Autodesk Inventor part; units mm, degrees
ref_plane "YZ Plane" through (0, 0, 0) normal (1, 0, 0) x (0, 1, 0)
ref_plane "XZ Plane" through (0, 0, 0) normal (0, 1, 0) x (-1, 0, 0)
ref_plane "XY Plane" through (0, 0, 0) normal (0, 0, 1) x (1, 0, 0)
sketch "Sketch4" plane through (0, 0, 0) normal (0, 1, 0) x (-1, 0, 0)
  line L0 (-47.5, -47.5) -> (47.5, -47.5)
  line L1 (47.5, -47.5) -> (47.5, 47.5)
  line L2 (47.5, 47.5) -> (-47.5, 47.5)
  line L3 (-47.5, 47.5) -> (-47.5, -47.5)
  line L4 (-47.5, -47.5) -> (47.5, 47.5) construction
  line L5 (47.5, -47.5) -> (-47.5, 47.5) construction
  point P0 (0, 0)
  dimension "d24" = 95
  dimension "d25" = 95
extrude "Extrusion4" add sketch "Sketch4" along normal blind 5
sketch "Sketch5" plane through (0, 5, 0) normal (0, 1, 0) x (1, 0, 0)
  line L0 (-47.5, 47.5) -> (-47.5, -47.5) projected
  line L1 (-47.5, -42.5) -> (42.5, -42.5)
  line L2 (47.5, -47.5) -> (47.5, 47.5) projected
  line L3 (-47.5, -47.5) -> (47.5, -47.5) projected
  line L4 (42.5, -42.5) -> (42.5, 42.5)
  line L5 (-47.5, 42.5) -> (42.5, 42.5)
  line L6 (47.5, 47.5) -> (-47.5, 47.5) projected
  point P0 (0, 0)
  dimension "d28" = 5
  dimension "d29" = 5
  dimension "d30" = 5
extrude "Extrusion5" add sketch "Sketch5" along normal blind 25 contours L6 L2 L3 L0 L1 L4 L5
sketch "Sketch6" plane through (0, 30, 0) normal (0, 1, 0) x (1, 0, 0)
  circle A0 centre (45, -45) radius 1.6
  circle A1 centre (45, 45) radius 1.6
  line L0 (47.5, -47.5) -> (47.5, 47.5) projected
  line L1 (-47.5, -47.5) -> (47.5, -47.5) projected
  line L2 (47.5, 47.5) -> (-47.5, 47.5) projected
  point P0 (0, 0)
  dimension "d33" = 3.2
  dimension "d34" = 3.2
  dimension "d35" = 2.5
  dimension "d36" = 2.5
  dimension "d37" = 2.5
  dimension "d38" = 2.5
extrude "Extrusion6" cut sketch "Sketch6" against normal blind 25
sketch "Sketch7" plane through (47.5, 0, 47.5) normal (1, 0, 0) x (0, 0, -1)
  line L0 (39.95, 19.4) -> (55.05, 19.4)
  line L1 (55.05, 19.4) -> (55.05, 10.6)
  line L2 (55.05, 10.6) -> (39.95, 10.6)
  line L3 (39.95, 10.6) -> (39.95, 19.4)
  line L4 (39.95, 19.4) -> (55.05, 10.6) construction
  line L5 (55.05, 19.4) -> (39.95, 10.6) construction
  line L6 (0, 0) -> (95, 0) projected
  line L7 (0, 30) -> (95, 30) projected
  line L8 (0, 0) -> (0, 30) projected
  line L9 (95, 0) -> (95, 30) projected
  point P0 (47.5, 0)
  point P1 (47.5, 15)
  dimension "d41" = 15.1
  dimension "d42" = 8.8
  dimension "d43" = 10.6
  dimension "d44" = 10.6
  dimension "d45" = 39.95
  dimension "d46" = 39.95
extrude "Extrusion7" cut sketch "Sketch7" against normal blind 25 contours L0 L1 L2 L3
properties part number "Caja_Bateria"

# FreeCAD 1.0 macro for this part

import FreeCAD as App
import Part
import Sketcher
from FreeCAD import Vector


def add_polygon(sketch, points):
    """Adds a closed chain of lines whose ends are joined by coincident constraints."""
    first, n = sketch.GeometryCount, len(points)
    for a, b in zip(points, points[1:] + points[:1]):
        sketch.addGeometry(Part.LineSegment(App.Vector(*a, 0), App.Vector(*b, 0)), False)
    for i in range(n):
        sketch.addConstraint(Sketcher.Constraint("Coincident", first + i, 2, first + (i + 1) % n, 1))

doc = App.newDocument("Part")
params = doc.addObject("Spreadsheet::Sheet", "Params")
for row, (alias, value) in enumerate([
    ("sketch1_width", "95 mm"),
    ("pad1_length", "5 mm"),
    ("sketch2_height", "5 mm"),
    ("sketch2_width", "95 mm"),
    ("pad2_length", "25 mm"),
    ("sketch3_diameter", "3.2 mm"),
    ("pocket1_length", "25 mm"),
    ("sketch4_width", "8.8 mm"),
    ("sketch4_height", "15.1 mm"),
    ("pocket2_length", "25 mm"),
], start=1):
    params.set(f"A{row}", alias)
    params.set(f"B{row}", "=" + value)
    params.setAlias(f"B{row}", alias)

body = doc.addObject("PartDesign::Body", "Body")

# Sketch on XZ plane
sketch1 = doc.addObject("Sketcher::SketchObject", "Sketch")
body.addObject(sketch1)
sketch1.AttachmentSupport = (doc.XZ_Plane, [""])
sketch1.MapMode = "FlatFace"
add_polygon(sketch1, [(47.5, 47.5), (47.5, -47.5), (-47.5, -47.5), (-47.5, 47.5)])  # lines 0-3
sketch1.addConstraint(Sketcher.Constraint("Vertical", 0))
sketch1.addConstraint(Sketcher.Constraint("Horizontal", 1))
sketch1.addConstraint(Sketcher.Constraint("Vertical", 2))
sketch1.addConstraint(Sketcher.Constraint("Horizontal", 3))
sketch1.addConstraint(Sketcher.Constraint("Symmetric", 0, 2, 2, 2, -1, 1))
sketch1.addConstraint(Sketcher.Constraint("Equal", 3, 0))
sketch1.addConstraint(Sketcher.Constraint("DistanceX", 1, 2, 1, 1, 95.0))
sketch1.setExpression("Constraints[10]", "Params.sketch1_width")
pad1 = doc.addObject("PartDesign::Pad", "Pad")
body.addObject(pad1)
pad1.Profile = sketch1
pad1.setExpression("Length", "Params.pad1_length")
pad1.Reversed = True

# Sketch on XZ plane
sketch2 = doc.addObject("Sketcher::SketchObject", "Sketch001")
body.addObject(sketch2)
sketch2.AttachmentSupport = (doc.XZ_Plane, [""])
sketch2.MapMode = "FlatFace"
sketch2.AttachmentOffset = App.Placement(Vector(0, 0, -5), App.Rotation())
add_polygon(sketch2, [(47.5, -47.5), (-47.5, -47.5), (-47.5, -42.5), (42.5, -42.5), (42.5, 42.5), (-47.5, 42.5), (-47.5, 47.5), (47.5, 47.5)])  # lines 0-7
sketch2.addConstraint(Sketcher.Constraint("Horizontal", 0))
sketch2.addConstraint(Sketcher.Constraint("Vertical", 1))
sketch2.addConstraint(Sketcher.Constraint("Horizontal", 2))
sketch2.addConstraint(Sketcher.Constraint("Vertical", 3))
sketch2.addConstraint(Sketcher.Constraint("Horizontal", 4))
sketch2.addConstraint(Sketcher.Constraint("Vertical", 5))
sketch2.addConstraint(Sketcher.Constraint("Horizontal", 6))
sketch2.addConstraint(Sketcher.Constraint("Vertical", 7))
sketch2.addConstraint(Sketcher.Constraint("Symmetric", 0, 2, 6, 2, -1, 1))
sketch2.addConstraint(Sketcher.Constraint("Symmetric", 1, 2, 4, 2, -1))
sketch2.addConstraint(Sketcher.Constraint("Equal", 6, 7))
sketch2.addConstraint(Sketcher.Constraint("DistanceY", 1, 1, 1, 2, 5.0))
sketch2.addConstraint(Sketcher.Constraint("DistanceX", 3, 2, 6, 2, 5.0))
sketch2.addConstraint(Sketcher.Constraint("DistanceX", 0, 2, 0, 1, 95.0))
sketch2.setExpression("Constraints[19]", "Params.sketch2_height")
sketch2.setExpression("Constraints[21]", "Params.sketch2_width")
pad2 = doc.addObject("PartDesign::Pad", "Pad001")
body.addObject(pad2)
pad2.Profile = sketch2
pad2.setExpression("Length", "Params.pad2_length")
pad2.Reversed = True

# Sketch on XZ plane
sketch3 = doc.addObject("Sketcher::SketchObject", "Sketch002")
body.addObject(sketch3)
sketch3.AttachmentSupport = (doc.XZ_Plane, [""])
sketch3.MapMode = "FlatFace"
sketch3.AttachmentOffset = App.Placement(Vector(0, 0, -30), App.Rotation())
sketch3.addGeometry(Part.Circle(Vector(45, 45, 0), Vector(0, 0, 1), 1.6), False)
sketch3.addGeometry(Part.Circle(Vector(45, -45, 0), Vector(0, 0, 1), 1.6), False)
sketch3.addConstraint(Sketcher.Constraint("Equal", 0, 1))
sketch3.addConstraint(Sketcher.Constraint("Symmetric", 0, 3, 1, 3, -1))
sketch3.addConstraint(Sketcher.Constraint("Diameter", 0, 3.2))
sketch3.addConstraint(Sketcher.Constraint("DistanceX", -1, 1, 0, 3, 45.0))
sketch3.addConstraint(Sketcher.Constraint("DistanceY", -1, 1, 0, 3, 45.0))
sketch3.setExpression("Constraints[2]", "Params.sketch3_diameter")
pocket1 = doc.addObject("PartDesign::Pocket", "Pocket")
body.addObject(pocket1)
pocket1.Profile = sketch3
pocket1.setExpression("Length", "Params.pocket1_length")
pocket1.Reversed = True

# Sketch on YZ plane
sketch4 = doc.addObject("Sketcher::SketchObject", "Sketch003")
body.addObject(sketch4)
sketch4.AttachmentSupport = (doc.YZ_Plane, [""])
sketch4.MapMode = "FlatFace"
sketch4.AttachmentOffset = App.Placement(Vector(0, 0, 47.5), App.Rotation())
add_polygon(sketch4, [(19.4, -7.55), (19.4, 7.55), (10.6, 7.55), (10.6, -7.55)])  # lines 0-3
sketch4.addConstraint(Sketcher.Constraint("Vertical", 0))
sketch4.addConstraint(Sketcher.Constraint("Horizontal", 1))
sketch4.addConstraint(Sketcher.Constraint("Vertical", 2))
sketch4.addConstraint(Sketcher.Constraint("Horizontal", 3))
sketch4.addConstraint(Sketcher.Constraint("DistanceX", 1, 2, 1, 1, 8.8))
sketch4.addConstraint(Sketcher.Constraint("DistanceY", 0, 1, 0, 2, 15.1))
sketch4.addConstraint(Sketcher.Constraint("DistanceX", -1, 1, 1, 2, 10.6))
sketch4.addConstraint(Sketcher.Constraint("DistanceY", -1, 1, 0, 2, 7.55))
sketch4.setExpression("Constraints[8]", "Params.sketch4_width")
sketch4.setExpression("Constraints[9]", "Params.sketch4_height")
pocket2 = doc.addObject("PartDesign::Pocket", "Pocket001")
body.addObject(pocket2)
pocket2.Profile = sketch4
pocket2.setExpression("Length", "Params.pocket2_length")

doc.recompute()
